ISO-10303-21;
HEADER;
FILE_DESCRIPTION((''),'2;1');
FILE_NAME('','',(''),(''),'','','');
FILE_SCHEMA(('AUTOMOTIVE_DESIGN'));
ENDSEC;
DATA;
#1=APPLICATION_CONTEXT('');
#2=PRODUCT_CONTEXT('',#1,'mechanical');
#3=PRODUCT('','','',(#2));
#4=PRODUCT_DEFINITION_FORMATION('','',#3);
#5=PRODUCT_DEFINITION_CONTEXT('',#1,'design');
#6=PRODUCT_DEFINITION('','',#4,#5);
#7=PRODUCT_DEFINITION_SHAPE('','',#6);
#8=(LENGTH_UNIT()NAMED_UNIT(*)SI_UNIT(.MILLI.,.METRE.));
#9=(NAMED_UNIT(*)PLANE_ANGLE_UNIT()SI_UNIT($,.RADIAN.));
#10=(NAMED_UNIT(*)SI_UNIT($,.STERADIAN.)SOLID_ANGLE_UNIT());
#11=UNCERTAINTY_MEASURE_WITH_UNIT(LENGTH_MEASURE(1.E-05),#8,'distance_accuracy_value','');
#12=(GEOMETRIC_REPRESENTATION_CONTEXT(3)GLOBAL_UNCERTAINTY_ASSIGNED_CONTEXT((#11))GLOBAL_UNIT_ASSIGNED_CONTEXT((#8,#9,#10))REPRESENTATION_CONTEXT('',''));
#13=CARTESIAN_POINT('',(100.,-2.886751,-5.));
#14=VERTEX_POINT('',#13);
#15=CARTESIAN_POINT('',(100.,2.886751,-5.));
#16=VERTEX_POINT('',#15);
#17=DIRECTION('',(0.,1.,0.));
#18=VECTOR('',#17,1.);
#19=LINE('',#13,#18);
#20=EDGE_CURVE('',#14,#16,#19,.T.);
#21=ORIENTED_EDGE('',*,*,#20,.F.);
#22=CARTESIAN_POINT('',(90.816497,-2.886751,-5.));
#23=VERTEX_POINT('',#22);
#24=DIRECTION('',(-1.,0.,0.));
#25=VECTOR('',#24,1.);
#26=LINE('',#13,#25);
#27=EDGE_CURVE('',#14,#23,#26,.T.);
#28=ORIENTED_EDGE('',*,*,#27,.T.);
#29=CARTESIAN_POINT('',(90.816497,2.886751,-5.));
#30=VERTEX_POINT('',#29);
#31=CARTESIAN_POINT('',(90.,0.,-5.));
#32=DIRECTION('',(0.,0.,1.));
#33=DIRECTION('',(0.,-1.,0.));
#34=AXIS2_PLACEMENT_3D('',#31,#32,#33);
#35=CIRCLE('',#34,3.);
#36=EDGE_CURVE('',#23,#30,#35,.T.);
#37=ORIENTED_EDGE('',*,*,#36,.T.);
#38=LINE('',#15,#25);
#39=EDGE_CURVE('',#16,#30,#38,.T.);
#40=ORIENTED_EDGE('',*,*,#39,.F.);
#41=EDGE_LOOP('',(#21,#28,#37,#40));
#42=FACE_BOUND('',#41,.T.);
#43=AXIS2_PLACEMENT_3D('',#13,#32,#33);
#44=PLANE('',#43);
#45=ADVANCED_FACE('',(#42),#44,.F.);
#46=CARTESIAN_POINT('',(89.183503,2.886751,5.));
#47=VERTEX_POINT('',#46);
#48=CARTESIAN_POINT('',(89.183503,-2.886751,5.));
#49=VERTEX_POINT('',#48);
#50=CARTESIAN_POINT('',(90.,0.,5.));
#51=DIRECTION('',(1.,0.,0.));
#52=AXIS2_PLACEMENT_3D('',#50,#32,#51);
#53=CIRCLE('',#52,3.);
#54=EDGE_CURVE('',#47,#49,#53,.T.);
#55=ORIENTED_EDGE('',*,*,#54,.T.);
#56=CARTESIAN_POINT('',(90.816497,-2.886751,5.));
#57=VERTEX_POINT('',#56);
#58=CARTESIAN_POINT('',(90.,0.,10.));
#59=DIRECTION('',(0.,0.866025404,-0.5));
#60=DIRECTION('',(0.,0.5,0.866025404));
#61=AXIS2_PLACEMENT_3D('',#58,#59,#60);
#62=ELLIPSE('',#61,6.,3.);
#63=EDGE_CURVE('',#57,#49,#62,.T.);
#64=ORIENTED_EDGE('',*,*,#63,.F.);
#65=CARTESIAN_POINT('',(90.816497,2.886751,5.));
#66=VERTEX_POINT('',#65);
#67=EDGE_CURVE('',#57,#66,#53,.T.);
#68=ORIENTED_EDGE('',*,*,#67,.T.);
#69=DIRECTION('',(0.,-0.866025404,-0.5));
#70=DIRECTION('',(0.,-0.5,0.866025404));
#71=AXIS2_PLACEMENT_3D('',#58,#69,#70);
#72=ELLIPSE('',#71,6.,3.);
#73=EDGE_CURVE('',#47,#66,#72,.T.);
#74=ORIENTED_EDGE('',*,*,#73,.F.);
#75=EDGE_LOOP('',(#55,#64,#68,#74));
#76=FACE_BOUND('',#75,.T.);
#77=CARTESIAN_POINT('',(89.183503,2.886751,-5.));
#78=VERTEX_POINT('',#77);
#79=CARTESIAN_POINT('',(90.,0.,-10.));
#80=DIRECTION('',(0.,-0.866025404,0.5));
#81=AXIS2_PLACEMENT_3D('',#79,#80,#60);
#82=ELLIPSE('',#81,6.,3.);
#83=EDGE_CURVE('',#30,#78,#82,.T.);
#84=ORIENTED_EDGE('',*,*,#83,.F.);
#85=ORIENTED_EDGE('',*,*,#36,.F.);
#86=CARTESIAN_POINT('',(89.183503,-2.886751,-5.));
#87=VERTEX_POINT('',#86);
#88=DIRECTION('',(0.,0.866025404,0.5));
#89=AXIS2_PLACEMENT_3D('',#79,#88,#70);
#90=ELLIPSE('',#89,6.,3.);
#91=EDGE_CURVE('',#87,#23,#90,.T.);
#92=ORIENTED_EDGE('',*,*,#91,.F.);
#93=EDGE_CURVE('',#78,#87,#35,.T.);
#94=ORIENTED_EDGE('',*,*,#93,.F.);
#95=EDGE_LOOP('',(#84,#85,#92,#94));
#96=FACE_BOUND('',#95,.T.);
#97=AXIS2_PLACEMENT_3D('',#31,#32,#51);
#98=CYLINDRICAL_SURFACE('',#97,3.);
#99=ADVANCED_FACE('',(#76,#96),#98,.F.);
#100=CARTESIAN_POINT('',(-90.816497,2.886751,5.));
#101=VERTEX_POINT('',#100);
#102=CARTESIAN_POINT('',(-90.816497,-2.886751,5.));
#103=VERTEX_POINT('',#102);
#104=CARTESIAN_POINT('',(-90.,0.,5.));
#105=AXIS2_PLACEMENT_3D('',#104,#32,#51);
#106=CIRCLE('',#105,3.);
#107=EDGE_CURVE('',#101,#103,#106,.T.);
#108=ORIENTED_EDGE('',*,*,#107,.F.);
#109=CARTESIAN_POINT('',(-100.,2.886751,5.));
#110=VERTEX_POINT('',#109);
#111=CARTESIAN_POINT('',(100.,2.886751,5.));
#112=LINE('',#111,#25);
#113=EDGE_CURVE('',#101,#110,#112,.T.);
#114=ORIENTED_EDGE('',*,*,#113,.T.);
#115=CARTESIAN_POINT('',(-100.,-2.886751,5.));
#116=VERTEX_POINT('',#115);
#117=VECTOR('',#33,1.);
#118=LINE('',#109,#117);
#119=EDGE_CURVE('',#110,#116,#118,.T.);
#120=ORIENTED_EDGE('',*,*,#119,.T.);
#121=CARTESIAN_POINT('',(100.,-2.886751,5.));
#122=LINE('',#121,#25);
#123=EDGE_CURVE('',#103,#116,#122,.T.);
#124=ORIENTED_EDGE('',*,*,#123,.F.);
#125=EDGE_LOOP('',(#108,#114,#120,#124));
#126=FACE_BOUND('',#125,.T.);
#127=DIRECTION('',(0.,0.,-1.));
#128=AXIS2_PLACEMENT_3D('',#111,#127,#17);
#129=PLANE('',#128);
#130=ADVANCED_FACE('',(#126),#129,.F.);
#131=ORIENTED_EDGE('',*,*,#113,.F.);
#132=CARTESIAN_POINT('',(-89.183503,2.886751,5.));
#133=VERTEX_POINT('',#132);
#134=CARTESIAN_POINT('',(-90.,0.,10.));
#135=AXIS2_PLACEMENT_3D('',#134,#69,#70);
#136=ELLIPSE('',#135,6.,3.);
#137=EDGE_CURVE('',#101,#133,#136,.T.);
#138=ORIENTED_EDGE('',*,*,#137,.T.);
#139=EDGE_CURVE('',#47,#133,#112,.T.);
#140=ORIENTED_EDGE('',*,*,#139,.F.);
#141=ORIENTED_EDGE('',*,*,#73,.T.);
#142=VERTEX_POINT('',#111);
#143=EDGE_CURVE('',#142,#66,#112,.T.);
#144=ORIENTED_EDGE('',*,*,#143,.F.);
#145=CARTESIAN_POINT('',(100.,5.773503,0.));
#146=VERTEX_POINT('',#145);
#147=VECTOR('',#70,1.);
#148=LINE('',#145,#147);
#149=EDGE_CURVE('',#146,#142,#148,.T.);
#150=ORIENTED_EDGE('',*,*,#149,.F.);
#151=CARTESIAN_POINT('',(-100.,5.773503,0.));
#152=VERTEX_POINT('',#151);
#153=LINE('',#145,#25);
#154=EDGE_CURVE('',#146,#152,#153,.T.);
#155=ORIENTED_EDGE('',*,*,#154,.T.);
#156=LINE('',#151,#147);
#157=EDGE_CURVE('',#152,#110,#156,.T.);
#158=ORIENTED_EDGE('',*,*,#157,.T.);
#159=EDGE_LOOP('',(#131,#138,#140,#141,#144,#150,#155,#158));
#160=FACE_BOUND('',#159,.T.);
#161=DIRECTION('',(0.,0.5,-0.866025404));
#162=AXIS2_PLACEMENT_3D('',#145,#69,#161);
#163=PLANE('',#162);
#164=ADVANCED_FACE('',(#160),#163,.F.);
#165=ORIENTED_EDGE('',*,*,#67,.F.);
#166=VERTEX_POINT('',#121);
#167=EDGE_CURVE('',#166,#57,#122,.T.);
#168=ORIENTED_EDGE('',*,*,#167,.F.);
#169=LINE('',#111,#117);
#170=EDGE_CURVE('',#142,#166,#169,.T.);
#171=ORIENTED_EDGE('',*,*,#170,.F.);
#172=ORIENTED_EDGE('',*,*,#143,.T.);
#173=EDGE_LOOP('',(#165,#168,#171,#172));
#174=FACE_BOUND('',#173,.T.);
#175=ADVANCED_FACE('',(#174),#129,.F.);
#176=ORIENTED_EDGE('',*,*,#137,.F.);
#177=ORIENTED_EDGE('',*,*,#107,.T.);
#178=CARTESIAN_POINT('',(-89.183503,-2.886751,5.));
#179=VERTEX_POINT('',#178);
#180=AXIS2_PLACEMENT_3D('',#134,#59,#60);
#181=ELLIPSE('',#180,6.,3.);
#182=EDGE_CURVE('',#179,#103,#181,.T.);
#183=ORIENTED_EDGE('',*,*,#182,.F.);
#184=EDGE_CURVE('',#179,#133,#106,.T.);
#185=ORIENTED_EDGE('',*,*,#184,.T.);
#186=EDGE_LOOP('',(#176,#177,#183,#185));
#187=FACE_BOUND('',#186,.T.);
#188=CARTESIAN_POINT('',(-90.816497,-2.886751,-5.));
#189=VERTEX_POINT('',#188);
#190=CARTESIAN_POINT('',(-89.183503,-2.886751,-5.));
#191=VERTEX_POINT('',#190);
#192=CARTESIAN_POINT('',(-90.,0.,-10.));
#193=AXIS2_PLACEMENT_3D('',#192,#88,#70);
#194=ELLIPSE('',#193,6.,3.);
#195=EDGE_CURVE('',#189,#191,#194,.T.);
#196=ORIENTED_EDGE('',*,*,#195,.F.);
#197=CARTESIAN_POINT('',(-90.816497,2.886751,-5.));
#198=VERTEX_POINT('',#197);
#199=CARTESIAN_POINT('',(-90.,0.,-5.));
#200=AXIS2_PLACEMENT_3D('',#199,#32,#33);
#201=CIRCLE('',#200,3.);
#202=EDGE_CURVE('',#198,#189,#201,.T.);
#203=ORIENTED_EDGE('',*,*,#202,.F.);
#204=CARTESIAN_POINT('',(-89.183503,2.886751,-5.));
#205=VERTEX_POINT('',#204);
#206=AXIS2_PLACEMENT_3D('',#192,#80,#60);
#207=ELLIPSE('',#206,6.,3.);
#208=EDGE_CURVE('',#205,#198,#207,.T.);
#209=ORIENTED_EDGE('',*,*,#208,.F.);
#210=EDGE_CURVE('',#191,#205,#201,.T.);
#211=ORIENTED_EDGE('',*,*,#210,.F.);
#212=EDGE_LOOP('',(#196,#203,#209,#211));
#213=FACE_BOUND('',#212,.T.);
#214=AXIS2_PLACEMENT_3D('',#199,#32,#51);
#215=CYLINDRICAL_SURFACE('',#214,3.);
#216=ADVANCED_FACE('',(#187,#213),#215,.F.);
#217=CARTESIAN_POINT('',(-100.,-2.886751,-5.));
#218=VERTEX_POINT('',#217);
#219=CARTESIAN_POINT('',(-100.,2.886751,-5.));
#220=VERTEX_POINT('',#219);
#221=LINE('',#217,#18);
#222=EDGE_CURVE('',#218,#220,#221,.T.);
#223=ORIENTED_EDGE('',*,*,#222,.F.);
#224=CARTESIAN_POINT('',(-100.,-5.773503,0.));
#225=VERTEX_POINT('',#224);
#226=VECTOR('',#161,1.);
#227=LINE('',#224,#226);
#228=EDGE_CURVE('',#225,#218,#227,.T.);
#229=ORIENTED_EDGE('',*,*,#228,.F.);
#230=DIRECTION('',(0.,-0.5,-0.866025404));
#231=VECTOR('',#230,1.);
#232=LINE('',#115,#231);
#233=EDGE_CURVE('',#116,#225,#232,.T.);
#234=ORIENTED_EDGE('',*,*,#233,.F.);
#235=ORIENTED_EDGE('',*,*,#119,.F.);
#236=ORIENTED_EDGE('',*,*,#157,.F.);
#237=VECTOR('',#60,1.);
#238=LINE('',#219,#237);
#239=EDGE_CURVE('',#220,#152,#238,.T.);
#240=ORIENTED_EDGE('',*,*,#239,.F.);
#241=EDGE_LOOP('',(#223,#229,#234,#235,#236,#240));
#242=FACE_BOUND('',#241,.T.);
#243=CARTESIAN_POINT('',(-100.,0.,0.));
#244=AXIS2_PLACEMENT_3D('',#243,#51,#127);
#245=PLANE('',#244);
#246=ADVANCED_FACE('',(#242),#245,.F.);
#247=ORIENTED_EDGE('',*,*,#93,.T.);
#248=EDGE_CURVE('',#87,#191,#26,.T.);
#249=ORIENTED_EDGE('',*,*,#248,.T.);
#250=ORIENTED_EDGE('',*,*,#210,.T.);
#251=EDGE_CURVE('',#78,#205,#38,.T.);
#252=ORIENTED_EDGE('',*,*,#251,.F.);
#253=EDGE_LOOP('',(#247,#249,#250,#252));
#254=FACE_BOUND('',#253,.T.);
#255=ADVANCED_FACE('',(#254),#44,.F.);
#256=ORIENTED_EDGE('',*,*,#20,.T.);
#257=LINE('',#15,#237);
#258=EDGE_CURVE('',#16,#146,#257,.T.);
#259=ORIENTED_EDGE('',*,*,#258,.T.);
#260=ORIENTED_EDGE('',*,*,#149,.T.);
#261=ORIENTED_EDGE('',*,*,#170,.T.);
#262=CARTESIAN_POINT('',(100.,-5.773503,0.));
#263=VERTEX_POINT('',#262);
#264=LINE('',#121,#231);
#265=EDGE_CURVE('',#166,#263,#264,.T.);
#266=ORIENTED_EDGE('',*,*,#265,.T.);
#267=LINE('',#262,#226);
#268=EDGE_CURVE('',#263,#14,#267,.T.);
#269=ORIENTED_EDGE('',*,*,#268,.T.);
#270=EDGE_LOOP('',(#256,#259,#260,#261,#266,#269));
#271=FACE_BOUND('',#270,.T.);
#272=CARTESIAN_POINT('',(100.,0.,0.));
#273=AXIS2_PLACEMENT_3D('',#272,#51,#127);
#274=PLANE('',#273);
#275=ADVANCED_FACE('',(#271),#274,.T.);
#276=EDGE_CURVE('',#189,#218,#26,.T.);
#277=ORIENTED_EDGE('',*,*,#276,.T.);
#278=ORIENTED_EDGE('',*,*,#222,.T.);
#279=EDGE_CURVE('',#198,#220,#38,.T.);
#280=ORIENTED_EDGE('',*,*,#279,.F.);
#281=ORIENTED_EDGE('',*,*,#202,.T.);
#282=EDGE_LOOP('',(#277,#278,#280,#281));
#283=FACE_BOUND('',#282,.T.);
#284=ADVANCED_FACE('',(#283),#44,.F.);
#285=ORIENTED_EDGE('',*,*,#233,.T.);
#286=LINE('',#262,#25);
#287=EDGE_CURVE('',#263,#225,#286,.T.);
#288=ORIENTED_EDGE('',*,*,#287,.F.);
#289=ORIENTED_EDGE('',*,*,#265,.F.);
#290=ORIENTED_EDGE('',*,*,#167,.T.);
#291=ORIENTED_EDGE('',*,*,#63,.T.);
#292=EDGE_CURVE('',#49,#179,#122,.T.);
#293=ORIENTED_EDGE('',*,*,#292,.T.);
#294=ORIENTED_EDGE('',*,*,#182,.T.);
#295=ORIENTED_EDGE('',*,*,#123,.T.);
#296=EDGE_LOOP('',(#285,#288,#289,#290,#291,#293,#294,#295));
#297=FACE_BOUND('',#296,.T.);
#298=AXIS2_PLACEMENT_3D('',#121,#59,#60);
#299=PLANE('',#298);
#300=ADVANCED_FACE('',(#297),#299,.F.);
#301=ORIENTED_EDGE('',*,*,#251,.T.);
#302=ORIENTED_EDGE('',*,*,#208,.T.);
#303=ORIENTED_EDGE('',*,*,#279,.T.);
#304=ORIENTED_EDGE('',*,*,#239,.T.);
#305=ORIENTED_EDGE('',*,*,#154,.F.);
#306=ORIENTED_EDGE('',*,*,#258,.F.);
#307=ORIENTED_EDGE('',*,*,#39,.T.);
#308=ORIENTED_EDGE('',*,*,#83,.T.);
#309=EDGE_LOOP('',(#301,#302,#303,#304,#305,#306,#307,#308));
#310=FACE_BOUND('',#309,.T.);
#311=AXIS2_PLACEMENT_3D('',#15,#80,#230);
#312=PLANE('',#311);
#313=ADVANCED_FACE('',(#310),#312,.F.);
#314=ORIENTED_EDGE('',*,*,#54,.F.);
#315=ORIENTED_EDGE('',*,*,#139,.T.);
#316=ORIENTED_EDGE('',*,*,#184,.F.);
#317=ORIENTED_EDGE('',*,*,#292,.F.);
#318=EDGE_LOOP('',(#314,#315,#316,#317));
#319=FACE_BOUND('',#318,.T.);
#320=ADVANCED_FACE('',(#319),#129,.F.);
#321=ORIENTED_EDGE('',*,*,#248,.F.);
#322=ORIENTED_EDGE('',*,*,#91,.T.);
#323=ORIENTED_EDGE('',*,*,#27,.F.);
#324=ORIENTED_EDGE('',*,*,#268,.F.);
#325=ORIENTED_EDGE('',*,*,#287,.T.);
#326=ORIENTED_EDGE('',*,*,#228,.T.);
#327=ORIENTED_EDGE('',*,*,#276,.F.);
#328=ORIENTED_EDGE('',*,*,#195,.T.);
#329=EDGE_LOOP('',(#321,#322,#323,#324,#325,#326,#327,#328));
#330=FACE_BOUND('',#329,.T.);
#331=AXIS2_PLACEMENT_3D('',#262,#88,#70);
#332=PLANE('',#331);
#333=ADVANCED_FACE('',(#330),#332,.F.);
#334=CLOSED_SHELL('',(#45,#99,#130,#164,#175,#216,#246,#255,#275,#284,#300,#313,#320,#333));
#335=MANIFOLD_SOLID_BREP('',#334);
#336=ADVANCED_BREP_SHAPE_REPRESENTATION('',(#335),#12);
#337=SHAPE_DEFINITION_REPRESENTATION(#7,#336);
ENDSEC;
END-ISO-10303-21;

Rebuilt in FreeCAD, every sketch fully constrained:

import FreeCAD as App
import Part
import Sketcher
from FreeCAD import Vector
Q = App.Units.Quantity


def add_polygon(sketch, points):
    """Adds a closed chain of lines whose ends are joined by coincident constraints."""
    first, n = sketch.GeometryCount, len(points)
    for a, b in zip(points, points[1:] + points[:1]):
        sketch.addGeometry(Part.LineSegment(App.Vector(*a, 0), App.Vector(*b, 0)), False)
    for i in range(n):
        sketch.addConstraint(Sketcher.Constraint("Coincident", first + i, 2, first + (i + 1) % n, 1))

doc = App.newDocument("Part")
body = doc.addObject("PartDesign::Body", "Body")

sketch1 = doc.addObject("Sketcher::SketchObject", "Sketch")
body.addObject(sketch1)
sketch1.AttachmentSupport = (doc.YZ_Plane, [""])
sketch1.MapMode = "FlatFace"
add_polygon(sketch1, [(5.773503, 0), (2.886751, 5), (-2.886751, 5), (-5.773503, 0), (-2.886751, -5), (2.886751, -5)])
sketch1.addConstraint(Sketcher.Constraint("Horizontal", 1))
sketch1.addConstraint(Sketcher.Constraint("Horizontal", 4))
sketch1.addConstraint(Sketcher.Constraint("Symmetric", 0, 2, 3, 2, -1, 1))
sketch1.addConstraint(Sketcher.Constraint("Symmetric", 2, 2, 5, 2, -1, 1))
sketch1.addConstraint(Sketcher.Constraint("PointOnObject", 2, 2, -1))
sketch1.addConstraint(Sketcher.Constraint("Parallel", 2, 5))
sketch1.addConstraint(Sketcher.Constraint("Vertical", 1, 2, 3, 2))
sketch1.addConstraint(Sketcher.Constraint("Angle", 0, Q("120 deg")))
sketch1.addConstraint(Sketcher.Constraint("DistanceY", -1, 1, 0, 2, Q("5 mm")))
sketch1.addConstraint(Sketcher.Constraint("DistanceX", 1, 2, 1, 1, Q("5.773503 mm")))
pad1 = doc.addObject("PartDesign::Pad", "Pad")
body.addObject(pad1)
pad1.Profile = sketch1
pad1.Length = 200
pad1.Midplane = True

sketch2 = doc.addObject("Sketcher::SketchObject", "Sketch001")
body.addObject(sketch2)
sketch2.AttachmentSupport = (doc.XY_Plane, [""])
sketch2.MapMode = "FlatFace"
sketch2.addGeometry(Part.Circle(Vector(90, 0, 0), Vector(0, 0, 1), 3), False)
sketch2.addGeometry(Part.Circle(Vector(-90, 0, 0), Vector(0, 0, 1), 3), False)
sketch2.addConstraint(Sketcher.Constraint("Equal", 0, 1))
sketch2.addConstraint(Sketcher.Constraint("Symmetric", 0, 3, 1, 3, -1, 1))
sketch2.addConstraint(Sketcher.Constraint("PointOnObject", 0, 3, -1))
sketch2.addConstraint(Sketcher.Constraint("Diameter", 0, Q("6 mm")))
sketch2.addConstraint(Sketcher.Constraint("DistanceX", -1, 1, 0, 3, Q("90 mm")))
pocket1 = doc.addObject("PartDesign::Pocket", "Pocket")
body.addObject(pocket1)
pocket1.Profile = sketch2
pocket1.Type = "ThroughAll"
pocket1.Midplane = True

doc.recompute()
